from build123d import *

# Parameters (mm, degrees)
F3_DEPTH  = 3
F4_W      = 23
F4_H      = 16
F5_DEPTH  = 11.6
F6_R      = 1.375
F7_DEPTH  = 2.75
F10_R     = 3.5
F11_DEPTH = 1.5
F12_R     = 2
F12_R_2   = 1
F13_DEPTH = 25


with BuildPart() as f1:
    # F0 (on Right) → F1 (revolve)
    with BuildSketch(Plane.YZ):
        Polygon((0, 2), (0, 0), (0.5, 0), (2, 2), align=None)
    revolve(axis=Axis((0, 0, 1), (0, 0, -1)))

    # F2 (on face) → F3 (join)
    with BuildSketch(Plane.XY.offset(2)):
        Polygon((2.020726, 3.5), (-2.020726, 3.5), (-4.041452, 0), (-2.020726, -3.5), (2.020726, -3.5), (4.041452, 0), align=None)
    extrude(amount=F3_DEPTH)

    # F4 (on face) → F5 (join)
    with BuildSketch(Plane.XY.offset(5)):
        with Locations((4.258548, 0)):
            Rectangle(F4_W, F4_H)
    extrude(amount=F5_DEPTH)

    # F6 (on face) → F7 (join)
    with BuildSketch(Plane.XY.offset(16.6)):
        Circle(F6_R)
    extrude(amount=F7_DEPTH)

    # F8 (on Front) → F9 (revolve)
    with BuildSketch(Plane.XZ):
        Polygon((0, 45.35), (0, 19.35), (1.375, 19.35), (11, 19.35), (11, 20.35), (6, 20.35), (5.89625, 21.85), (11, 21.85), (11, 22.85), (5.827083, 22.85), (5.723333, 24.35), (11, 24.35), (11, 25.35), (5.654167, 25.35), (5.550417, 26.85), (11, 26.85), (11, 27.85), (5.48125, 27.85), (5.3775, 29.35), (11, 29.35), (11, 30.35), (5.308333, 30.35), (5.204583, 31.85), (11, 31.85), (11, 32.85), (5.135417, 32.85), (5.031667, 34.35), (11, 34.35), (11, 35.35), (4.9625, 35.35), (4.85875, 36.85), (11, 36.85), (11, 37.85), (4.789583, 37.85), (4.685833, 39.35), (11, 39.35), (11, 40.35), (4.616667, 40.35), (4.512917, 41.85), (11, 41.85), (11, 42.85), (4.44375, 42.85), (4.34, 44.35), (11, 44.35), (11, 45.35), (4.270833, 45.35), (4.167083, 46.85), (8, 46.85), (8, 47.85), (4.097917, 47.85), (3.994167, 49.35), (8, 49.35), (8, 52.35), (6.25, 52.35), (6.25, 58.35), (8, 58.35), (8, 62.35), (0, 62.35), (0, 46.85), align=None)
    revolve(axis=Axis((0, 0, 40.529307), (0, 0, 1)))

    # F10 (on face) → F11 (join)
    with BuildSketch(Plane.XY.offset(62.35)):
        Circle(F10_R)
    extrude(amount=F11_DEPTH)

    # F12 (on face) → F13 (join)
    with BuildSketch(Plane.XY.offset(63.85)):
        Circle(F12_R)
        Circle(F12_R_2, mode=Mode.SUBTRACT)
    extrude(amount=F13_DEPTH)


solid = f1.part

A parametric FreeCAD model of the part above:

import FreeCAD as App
import Part
import Sketcher
Q = App.Units.Quantity

doc = App.newDocument("Part")
body = doc.addObject("PartDesign::Body", "Body")

# Sketch on YZ plane
sketch1 = doc.addObject("Sketcher::SketchObject", "Sketch")
body.addObject(sketch1)
sketch1.AttachmentSupport = (doc.YZ_Plane, [""])
sketch1.MapMode = "FlatFace"
sketch1.addGeometry([
    Part.LineSegment(App.Vector(0, 2, 0), App.Vector(0, 0, 0)),
    Part.LineSegment(App.Vector(0, 0, 0), App.Vector(0.5, 0, 0)),
    Part.LineSegment(App.Vector(0.5, 0, 0), App.Vector(2, 2, 0)),
    Part.LineSegment(App.Vector(2, 2, 0), App.Vector(0, 2, 0)),
], False)
sketch1.addConstraint([
    Sketcher.Constraint("Coincident", 0, 2, 1, 1),
    Sketcher.Constraint("Coincident", 1, 2, 2, 1),
    Sketcher.Constraint("Coincident", 2, 2, 3, 1),
    Sketcher.Constraint("Coincident", 3, 2, 0, 1),
    Sketcher.Constraint("Vertical", 0),
    Sketcher.Constraint("Horizontal", 1),
    Sketcher.Constraint("Horizontal", 3),
    Sketcher.Constraint("Coincident", 0, 2, -1, 1),
    Sketcher.Constraint("Equal", 3, 0),
    Sketcher.Constraint("DistanceX", 3, 2, 3, 1, Q("2 mm")),
    Sketcher.Constraint("DistanceX", 1, 1, 1, 2, Q("0.5 mm")),
])
revolution = doc.addObject("PartDesign::Revolution", "Revolution")
body.addObject(revolution)
revolution.Profile = sketch1
revolution.ReferenceAxis = (sketch1, ["V_Axis"])
revolution.Angle = 360

# Sketch on XY plane
sketch2 = doc.addObject("Sketcher::SketchObject", "Sketch001")
body.addObject(sketch2)
sketch2.AttachmentSupport = (doc.XY_Plane, [""])
sketch2.MapMode = "FlatFace"
sketch2.AttachmentOffset = App.Placement(App.Vector(0, 0, 2), App.Rotation())
sketch2.addGeometry([
    Part.LineSegment(App.Vector(2, 3.5, 0), App.Vector(-2, 3.5, 0)),  # 0
    Part.LineSegment(App.Vector(-2, 3.5, 0), App.Vector(-4, 0, 0)),  # 1
    Part.LineSegment(App.Vector(-4, 0, 0), App.Vector(-2, -3.5, 0)),  # 2
    Part.LineSegment(App.Vector(-2, -3.5, 0), App.Vector(2, -3.5, 0)),  # 3
    Part.LineSegment(App.Vector(2, -3.5, 0), App.Vector(4, 0, 0)),  # 4
    Part.LineSegment(App.Vector(4, 0, 0), App.Vector(2, 3.5, 0)),  # 5
], False)
sketch2.addConstraint([
    Sketcher.Constraint("Coincident", 0, 2, 1, 1),
    Sketcher.Constraint("Coincident", 1, 2, 2, 1),
    Sketcher.Constraint("Coincident", 2, 2, 3, 1),
    Sketcher.Constraint("Coincident", 3, 2, 4, 1),
    Sketcher.Constraint("Coincident", 4, 2, 5, 1),
    Sketcher.Constraint("Coincident", 5, 2, 0, 1),
    Sketcher.Constraint("Horizontal", 0),
    Sketcher.Constraint("Horizontal", 3),
    Sketcher.Constraint("Symmetric", 0, 2, 3, 2, -1, 1),
    Sketcher.Constraint("Symmetric", 1, 2, 4, 2, -1, 1),
    Sketcher.Constraint("PointOnObject", 1, 2, -1),
    Sketcher.Constraint("Parallel", 2, 5),
    Sketcher.Constraint("Vertical", 0, 2, 2, 2),
    Sketcher.Constraint("Angle", 1, Q("-120.000001 deg")),
    Sketcher.Constraint("DistanceY", 2, 2, 0, 2, Q("7 mm")),
    Sketcher.Constraint("DistanceX", 0, 2, 0, 1, Q("4.041452 mm")),
])
pad1 = doc.addObject("PartDesign::Pad", "Pad")
body.addObject(pad1)
pad1.Profile = sketch2
pad1.Length = 3

# Sketch on XY plane
sketch3 = doc.addObject("Sketcher::SketchObject", "Sketch002")
body.addObject(sketch3)
sketch3.AttachmentSupport = (doc.XY_Plane, [""])
sketch3.MapMode = "FlatFace"
sketch3.AttachmentOffset = App.Placement(App.Vector(0, 0, 5), App.Rotation())
sketch3.addGeometry([
    Part.LineSegment(App.Vector(-7, 8, 0), App.Vector(-7, -8, 0)),
    Part.LineSegment(App.Vector(-7, -8, 0), App.Vector(16, -8, 0)),
    Part.LineSegment(App.Vector(16, -8, 0), App.Vector(16, 8, 0)),
    Part.LineSegment(App.Vector(16, 8, 0), App.Vector(-7, 8, 0)),
], False)
sketch3.addConstraint([
    Sketcher.Constraint("Coincident", 0, 2, 1, 1),
    Sketcher.Constraint("Coincident", 1, 2, 2, 1),
    Sketcher.Constraint("Coincident", 2, 2, 3, 1),
    Sketcher.Constraint("Coincident", 3, 2, 0, 1),
    Sketcher.Constraint("Vertical", 0),
    Sketcher.Constraint("Horizontal", 1),
    Sketcher.Constraint("Vertical", 2),
    Sketcher.Constraint("Horizontal", 3),
    Sketcher.Constraint("DistanceX", 1, 1, 1, 2, Q("23 mm")),
    Sketcher.Constraint("DistanceY", 0, 2, 0, 1, Q("16 mm")),
    Sketcher.Constraint("DistanceY", 0, 2, -1, 1, Q("8 mm")),
    Sketcher.Constraint("DistanceX", 0, 2, -1, 1, Q("7.241452 mm")),
])
pad2 = doc.addObject("PartDesign::Pad", "Pad001")
body.addObject(pad2)
pad2.Profile = sketch3
pad2.Length = 11.6

# Sketch on XY plane
sketch4 = doc.addObject("Sketcher::SketchObject", "Sketch003")
body.addObject(sketch4)
sketch4.AttachmentSupport = (doc.XY_Plane, [""])
sketch4.MapMode = "FlatFace"
sketch4.AttachmentOffset = App.Placement(App.Vector(0, 0, 16.6), App.Rotation())
sketch4.addGeometry(Part.Circle(App.Vector(0, 0, 0), App.Vector(0, 0, 1), 1.4), False)
sketch4.addConstraint([
    Sketcher.Constraint("Coincident", 0, 3, -1, 1),
    Sketcher.Constraint("Diameter", 0, Q("2.75 mm")),
])
pad3 = doc.addObject("PartDesign::Pad", "Pad002")
body.addObject(pad3)
pad3.Profile = sketch4
pad3.Length = 2.75

# Sketch on XZ plane
sketch5 = doc.addObject("Sketcher::SketchObject", "Sketch004")
body.addObject(sketch5)
sketch5.AttachmentSupport = (doc.XZ_Plane, [""])
sketch5.MapMode = "FlatFace"
sketch5.addGeometry([
    Part.LineSegment(App.Vector(0, 19.4, 0), App.Vector(11, 19.4, 0)),  # 0
    Part.LineSegment(App.Vector(11, 19.4, 0), App.Vector(11, 20.4, 0)),  # 1
    Part.LineSegment(App.Vector(11, 20.4, 0), App.Vector(6, 20.4, 0)),  # 2
    Part.LineSegment(App.Vector(6, 20.4, 0), App.Vector(5.9, 21.9, 0)),  # 3
    Part.LineSegment(App.Vector(5.9, 21.9, 0), App.Vector(11, 21.9, 0)),  # 4
    Part.LineSegment(App.Vector(11, 21.9, 0), App.Vector(11, 22.9, 0)),  # 5
    Part.LineSegment(App.Vector(11, 22.9, 0), App.Vector(5.8, 22.9, 0)),  # 6
    Part.LineSegment(App.Vector(5.8, 22.9, 0), App.Vector(5.7, 24.4, 0)),  # 7
    Part.LineSegment(App.Vector(5.7, 24.4, 0), App.Vector(11, 24.4, 0)),  # 8
    Part.LineSegment(App.Vector(11, 24.4, 0), App.Vector(11, 25.4, 0)),  # 9
    Part.LineSegment(App.Vector(11, 25.4, 0), App.Vector(5.7, 25.4, 0)),  # 10
    Part.LineSegment(App.Vector(5.7, 25.4, 0), App.Vector(5.6, 26.9, 0)),  # 11
    Part.LineSegment(App.Vector(5.6, 26.9, 0), App.Vector(11, 26.9, 0)),  # 12
    Part.LineSegment(App.Vector(11, 26.9, 0), App.Vector(11, 27.9, 0)),  # 13
    Part.LineSegment(App.Vector(11, 27.9, 0), App.Vector(5.5, 27.9, 0)),  # 14
    Part.LineSegment(App.Vector(5.5, 27.9, 0), App.Vector(5.4, 29.4, 0)),  # 15
    Part.LineSegment(App.Vector(5.4, 29.4, 0), App.Vector(11, 29.4, 0)),  # 16
    Part.LineSegment(App.Vector(11, 29.4, 0), App.Vector(11, 30.4, 0)),  # 17
    Part.LineSegment(App.Vector(11, 30.4, 0), App.Vector(5.3, 30.4, 0)),  # 18
    Part.LineSegment(App.Vector(5.3, 30.4, 0), App.Vector(5.2, 31.9, 0)),  # 19
    Part.LineSegment(App.Vector(5.2, 31.9, 0), App.Vector(11, 31.9, 0)),  # 20
    Part.LineSegment(App.Vector(11, 31.9, 0), App.Vector(11, 32.9, 0)),  # 21
    Part.LineSegment(App.Vector(11, 32.9, 0), App.Vector(5.1, 32.9, 0)),  # 22
    Part.LineSegment(App.Vector(5.1, 32.9, 0), App.Vector(5, 34.4, 0)),  # 23
    Part.LineSegment(App.Vector(5, 34.4, 0), App.Vector(11, 34.4, 0)),  # 24
    Part.LineSegment(App.Vector(11, 34.4, 0), App.Vector(11, 35.4, 0)),  # 25
    Part.LineSegment(App.Vector(11, 35.4, 0), App.Vector(5, 35.4, 0)),  # 26
    Part.LineSegment(App.Vector(5, 35.4, 0), App.Vector(4.9, 36.9, 0)),  # 27
    Part.LineSegment(App.Vector(4.9, 36.9, 0), App.Vector(11, 36.9, 0)),  # 28
    Part.LineSegment(App.Vector(11, 36.9, 0), App.Vector(11, 37.9, 0)),  # 29
    Part.LineSegment(App.Vector(11, 37.9, 0), App.Vector(4.8, 37.9, 0)),  # 30
    Part.LineSegment(App.Vector(4.8, 37.9, 0), App.Vector(4.7, 39.4, 0)),  # 31
    Part.LineSegment(App.Vector(4.7, 39.4, 0), App.Vector(11, 39.4, 0)),  # 32
    Part.LineSegment(App.Vector(11, 39.4, 0), App.Vector(11, 40.4, 0)),  # 33
    Part.LineSegment(App.Vector(11, 40.4, 0), App.Vector(4.6, 40.4, 0)),  # 34
    Part.LineSegment(App.Vector(4.6, 40.4, 0), App.Vector(4.5, 41.9, 0)),  # 35
    Part.LineSegment(App.Vector(4.5, 41.9, 0), App.Vector(11, 41.9, 0)),  # 36
    Part.LineSegment(App.Vector(11, 41.9, 0), App.Vector(11, 42.9, 0)),  # 37
    Part.LineSegment(App.Vector(11, 42.9, 0), App.Vector(4.4, 42.9, 0)),  # 38
    Part.LineSegment(App.Vector(4.4, 42.9, 0), App.Vector(4.3, 44.4, 0)),  # 39
    Part.LineSegment(App.Vector(4.3, 44.4, 0), App.Vector(11, 44.4, 0)),  # 40
    Part.LineSegment(App.Vector(11, 44.4, 0), App.Vector(11, 45.4, 0)),  # 41
    Part.LineSegment(App.Vector(11, 45.4, 0), App.Vector(4.3, 45.4, 0)),  # 42
    Part.LineSegment(App.Vector(4.3, 45.4, 0), App.Vector(4.2, 46.9, 0)),  # 43
    Part.LineSegment(App.Vector(4.2, 46.9, 0), App.Vector(8, 46.9, 0)),  # 44
    Part.LineSegment(App.Vector(8, 46.9, 0), App.Vector(8, 47.9, 0)),  # 45
    Part.LineSegment(App.Vector(8, 47.9, 0), App.Vector(4.1, 47.9, 0)),  # 46
    Part.LineSegment(App.Vector(4.1, 47.9, 0), App.Vector(4, 49.4, 0)),  # 47
    Part.LineSegment(App.Vector(4, 49.4, 0), App.Vector(8, 49.4, 0)),  # 48
    Part.LineSegment(App.Vector(8, 49.4, 0), App.Vector(8, 52.4, 0)),  # 49
    Part.LineSegment(App.Vector(8, 52.4, 0), App.Vector(6.2, 52.4, 0)),  # 50
    Part.LineSegment(App.Vector(6.2, 52.4, 0), App.Vector(6.2, 58.4, 0)),  # 51
    Part.LineSegment(App.Vector(6.2, 58.4, 0), App.Vector(8, 58.4, 0)),  # 52
    Part.LineSegment(App.Vector(8, 58.4, 0), App.Vector(8, 62.4, 0)),  # 53
    Part.LineSegment(App.Vector(8, 62.4, 0), App.Vector(0, 62.4, 0)),  # 54
    Part.LineSegment(App.Vector(0, 62.4, 0), App.Vector(0, 19.4, 0)),  # 55
], False)
sketch5.addConstraint([
    Sketcher.Constraint("Coincident", 0, 2, 1, 1),
    Sketcher.Constraint("Coincident", 1, 2, 2, 1),
    Sketcher.Constraint("Coincident", 2, 2, 3, 1),
    Sketcher.Constraint("Coincident", 3, 2, 4, 1),
    Sketcher.Constraint("Coincident", 4, 2, 5, 1),
    Sketcher.Constraint("Coincident", 5, 2, 6, 1),
    Sketcher.Constraint("Coincident", 6, 2, 7, 1),
    Sketcher.Constraint("Coincident", 7, 2, 8, 1),
    Sketcher.Constraint("Coincident", 8, 2, 9, 1),
    Sketcher.Constraint("Coincident", 9, 2, 10, 1),
    Sketcher.Constraint("Coincident", 10, 2, 11, 1),
    Sketcher.Constraint("Coincident", 11, 2, 12, 1),
    Sketcher.Constraint("Coincident", 12, 2, 13, 1),
    Sketcher.Constraint("Coincident", 13, 2, 14, 1),
    Sketcher.Constraint("Coincident", 14, 2, 15, 1),
    Sketcher.Constraint("Coincident", 15, 2, 16, 1),
    Sketcher.Constraint("Coincident", 16, 2, 17, 1),
    Sketcher.Constraint("Coincident", 17, 2, 18, 1),
    Sketcher.Constraint("Coincident", 18, 2, 19, 1),
    Sketcher.Constraint("Coincident", 19, 2, 20, 1),
    Sketcher.Constraint("Coincident", 20, 2, 21, 1),
    Sketcher.Constraint("Coincident", 21, 2, 22, 1),
    Sketcher.Constraint("Coincident", 22, 2, 23, 1),
    Sketcher.Constraint("Coincident", 23, 2, 24, 1),
    Sketcher.Constraint("Coincident", 24, 2, 25, 1),
    Sketcher.Constraint("Coincident", 25, 2, 26, 1),
    Sketcher.Constraint("Coincident", 26, 2, 27, 1),
    Sketcher.Constraint("Coincident", 27, 2, 28, 1),
    Sketcher.Constraint("Coincident", 28, 2, 29, 1),
    Sketcher.Constraint("Coincident", 29, 2, 30, 1),
    Sketcher.Constraint("Coincident", 30, 2, 31, 1),
    Sketcher.Constraint("Coincident", 31, 2, 32, 1),
    Sketcher.Constraint("Coincident", 32, 2, 33, 1),
    Sketcher.Constraint("Coincident", 33, 2, 34, 1),
    Sketcher.Constraint("Coincident", 34, 2, 35, 1),
    Sketcher.Constraint("Coincident", 35, 2, 36, 1),
    Sketcher.Constraint("Coincident", 36, 2, 37, 1),
    Sketcher.Constraint("Coincident", 37, 2, 38, 1),
    Sketcher.Constraint("Coincident", 38, 2, 39, 1),
    Sketcher.Constraint("Coincident", 39, 2, 40, 1),
    Sketcher.Constraint("Coincident", 40, 2, 41, 1),
    Sketcher.Constraint("Coincident", 41, 2, 42, 1),
    Sketcher.Constraint("Coincident", 42, 2, 43, 1),
    Sketcher.Constraint("Coincident", 43, 2, 44, 1),
    Sketcher.Constraint("Coincident", 44, 2, 45, 1),
    Sketcher.Constraint("Coincident", 45, 2, 46, 1),
    Sketcher.Constraint("Coincident", 46, 2, 47, 1),
    Sketcher.Constraint("Coincident", 47, 2, 48, 1),
    Sketcher.Constraint("Coincident", 48, 2, 49, 1),
    Sketcher.Constraint("Coincident", 49, 2, 50, 1),
    Sketcher.Constraint("Coincident", 50, 2, 51, 1),
    Sketcher.Constraint("Coincident", 51, 2, 52, 1),
    Sketcher.Constraint("Coincident", 52, 2, 53, 1),
    Sketcher.Constraint("Coincident", 53, 2, 54, 1),
    Sketcher.Constraint("Coincident", 54, 2, 55, 1),
    Sketcher.Constraint("Coincident", 55, 2, 0, 1),
    Sketcher.Constraint("Horizontal", 0),
    Sketcher.Constraint("Vertical", 1),
    Sketcher.Constraint("Horizontal", 2),
    Sketcher.Constraint("Horizontal", 4),
    Sketcher.Constraint("Vertical", 5),
    Sketcher.Constraint("Horizontal", 6),
    Sketcher.Constraint("Horizontal", 8),
    Sketcher.Constraint("Vertical", 9),
    Sketcher.Constraint("Horizontal", 10),
    Sketcher.Constraint("Horizontal", 12),
    Sketcher.Constraint("Vertical", 13),
    Sketcher.Constraint("Horizontal", 14),
    Sketcher.Constraint("Horizontal", 16),
    Sketcher.Constraint("Vertical", 17),
    Sketcher.Constraint("Horizontal", 18),
    Sketcher.Constraint("Horizontal", 20),
    Sketcher.Constraint("Vertical", 21),
    Sketcher.Constraint("Horizontal", 22),
    Sketcher.Constraint("Horizontal", 24),
    Sketcher.Constraint("Vertical", 25),
    Sketcher.Constraint("Horizontal", 26),
    Sketcher.Constraint("Horizontal", 28),
    Sketcher.Constraint("Vertical", 29),
    Sketcher.Constraint("Horizontal", 30),
    Sketcher.Constraint("Horizontal", 32),
    Sketcher.Constraint("Vertical", 33),
    Sketcher.Constraint("Horizontal", 34),
    Sketcher.Constraint("Horizontal", 36),
    Sketcher.Constraint("Vertical", 37),
    Sketcher.Constraint("Horizontal", 38),
    Sketcher.Constraint("Horizontal", 40),
    Sketcher.Constraint("Vertical", 41),
    Sketcher.Constraint("Horizontal", 42),
    Sketcher.Constraint("Horizontal", 44),
    Sketcher.Constraint("Vertical", 45),
    Sketcher.Constraint("Horizontal", 46),
    Sketcher.Constraint("Horizontal", 48),
    Sketcher.Constraint("Vertical", 49),
    Sketcher.Constraint("Horizontal", 50),
    Sketcher.Constraint("Vertical", 51),
    Sketcher.Constraint("Horizontal", 52),
    Sketcher.Constraint("Vertical", 53),
    Sketcher.Constraint("Horizontal", 54),
    Sketcher.Constraint("Vertical", 55),
    Sketcher.Constraint("PointOnObject", 54, 2, -2),
    Sketcher.Constraint("Parallel", 3, 7),
    Sketcher.Constraint("Parallel", 7, 11),
    Sketcher.Constraint("Parallel", 11, 15),
    Sketcher.Constraint("Parallel", 15, 19),
    Sketcher.Constraint("Parallel", 19, 23),
    Sketcher.Constraint("Parallel", 23, 27),
    Sketcher.Constraint("Parallel", 27, 31),
    Sketcher.Constraint("Parallel", 31, 35),
    Sketcher.Constraint("Parallel", 35, 39),
    Sketcher.Constraint("Parallel", 39, 43),
    Sketcher.Constraint("Parallel", 43, 47),
    Sketcher.Constraint("Vertical", 1, 2, 4, 2),
    Sketcher.Constraint("Vertical", 5, 2, 8, 2),
    Sketcher.Constraint("Vertical", 9, 2, 12, 2),
    Sketcher.Constraint("Vertical", 13, 2, 16, 2),
    Sketcher.Constraint("Vertical", 17, 2, 20, 2),
    Sketcher.Constraint("Vertical", 21, 2, 24, 2),
    Sketcher.Constraint("Vertical", 25, 2, 28, 2),
    Sketcher.Constraint("Vertical", 29, 2, 32, 2),
    Sketcher.Constraint("Vertical", 33, 2, 36, 2),
    Sketcher.Constraint("Vertical", 37, 2, 40, 2),
    Sketcher.Constraint("Vertical", 45, 2, 48, 2),
    Sketcher.Constraint("Vertical", 49, 2, 52, 2),
    Sketcher.Constraint("Equal", 1, 5),
    Sketcher.Constraint("Equal", 5, 9),
    Sketcher.Constraint("Equal", 9, 13),
    Sketcher.Constraint("Equal", 13, 17),
    Sketcher.Constraint("Equal", 17, 21),
    Sketcher.Constraint("Equal", 21, 25),
    Sketcher.Constraint("Equal", 25, 29),
    Sketcher.Constraint("Equal", 29, 33),
    Sketcher.Constraint("Equal", 33, 37),
    Sketcher.Constraint("Equal", 37, 41),
    Sketcher.Constraint("Equal", 41, 45),
    Sketcher.Constraint("Equal", 3, 7),
    Sketcher.Constraint("Equal", 7, 11),
    Sketcher.Constraint("Equal", 11, 15),
    Sketcher.Constraint("Equal", 15, 19),
    Sketcher.Constraint("Equal", 19, 23),
    Sketcher.Constraint("Equal", 23, 27),
    Sketcher.Constraint("Equal", 27, 31),
    Sketcher.Constraint("Equal", 31, 35),
    Sketcher.Constraint("Equal", 35, 39),
    Sketcher.Constraint("Equal", 39, 43),
    Sketcher.Constraint("Equal", 43, 47),
    Sketcher.Constraint("DistanceX", 0, 1, 0, 2, Q("11 mm")),
    Sketcher.Constraint("DistanceX", 2, 2, 2, 1, Q("5 mm")),
    Sketcher.Constraint("DistanceX", 54, 2, 54, 1, Q("8 mm")),
    Sketcher.Constraint("DistanceY", 1, 1, 1, 2, Q("1 mm")),
    Sketcher.Constraint("DistanceY", 49, 1, 49, 2, Q("3 mm")),
    Sketcher.Constraint("DistanceY", 51, 1, 51, 2, Q("6 mm")),
    Sketcher.Constraint("DistanceY", 53, 1, 53, 2, Q("4 mm")),
    Sketcher.Constraint("DistanceY", 55, 2, 55, 1, Q("43 mm")),
    Sketcher.Constraint("DistanceX", 40, 1, 40, 2, Q("6.66 mm")),
    Sketcher.Constraint("DistanceX", 50, 2, 50, 1, Q("1.75 mm")),
    Sketcher.Constraint("DistanceY", -1, 1, 0, 2, Q("19.35 mm")),
    Sketcher.Constraint("DistanceX", 16, 1, 16, 2, Q("5.6225 mm")),
    Sketcher.Constraint("DistanceX", 26, 2, 26, 1, Q("6.0375 mm")),
    Sketcher.Constraint("DistanceX", 30, 2, 19, 2, Q("0.415 mm")),
    Sketcher.Constraint("DistanceX", 34, 2, 23, 2, Q("0.415 mm")),
    Sketcher.Constraint("DistanceX", 38, 2, 27, 2, Q("0.415 mm")),
    Sketcher.Constraint("DistanceX", 42, 2, 31, 2, Q("0.415 mm")),
    Sketcher.Constraint("DistanceX", 6, 2, 6, 1, Q("5.172917 mm")),
    Sketcher.Constraint("DistanceX", 10, 2, 10, 1, Q("5.345833 mm")),
    Sketcher.Constraint("DistanceX", 18, 2, 18, 1, Q("5.691667 mm")),
    Sketcher.Constraint("DistanceX", 22, 2, 22, 1, Q("5.864583 mm")),
    Sketcher.Constraint("DistanceX", 46, 2, 46, 1, Q("3.902083 mm")),
])
revolution2 = doc.addObject("PartDesign::Revolution", "Revolution001")
body.addObject(revolution2)
revolution2.Profile = sketch5
revolution2.ReferenceAxis = (sketch5, ["V_Axis"])
revolution2.Angle = 360

# Sketch on XY plane
sketch6 = doc.addObject("Sketcher::SketchObject", "Sketch005")
body.addObject(sketch6)
sketch6.AttachmentSupport = (doc.XY_Plane, [""])
sketch6.MapMode = "FlatFace"
sketch6.AttachmentOffset = App.Placement(App.Vector(0, 0, 62.35), App.Rotation())
sketch6.addGeometry(Part.Circle(App.Vector(0, 0, 0), App.Vector(0, 0, 1), 3.5), False)
sketch6.addConstraint([
    Sketcher.Constraint("Coincident", 0, 3, -1, 1),
    Sketcher.Constraint("Diameter", 0, Q("7 mm")),
])
pad4 = doc.addObject("PartDesign::Pad", "Pad003")
body.addObject(pad4)
pad4.Profile = sketch6
pad4.Length = 1.5

# Sketch on XY plane
sketch7 = doc.addObject("Sketcher::SketchObject", "Sketch006")
body.addObject(sketch7)
sketch7.AttachmentSupport = (doc.XY_Plane, [""])
sketch7.MapMode = "FlatFace"
sketch7.AttachmentOffset = App.Placement(App.Vector(0, 0, 63.85), App.Rotation())
sketch7.addGeometry([
    Part.Circle(App.Vector(0, 0, 0), App.Vector(0, 0, 1), 2),
    Part.Circle(App.Vector(0, 0, 0), App.Vector(0, 0, 1), 1),
], False)
sketch7.addConstraint([
    Sketcher.Constraint("Coincident", 0, 3, -1, 1),
    Sketcher.Constraint("Coincident", 1, 3, -1, 1),
    Sketcher.Constraint("Diameter", 0, Q("4 mm")),
    Sketcher.Constraint("Diameter", 1, Q("2 mm")),
])
pad5 = doc.addObject("PartDesign::Pad", "Pad004")
body.addObject(pad5)
pad5.Profile = sketch7
pad5.Length = 25

doc.recompute()
